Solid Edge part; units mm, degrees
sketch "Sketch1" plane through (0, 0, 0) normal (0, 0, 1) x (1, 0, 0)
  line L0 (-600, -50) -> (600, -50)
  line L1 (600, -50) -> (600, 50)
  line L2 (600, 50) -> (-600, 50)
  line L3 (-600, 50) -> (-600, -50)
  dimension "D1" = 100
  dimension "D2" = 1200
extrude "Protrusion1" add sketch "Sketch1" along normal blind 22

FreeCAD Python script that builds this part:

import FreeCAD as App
import Part
import Sketcher
Q = App.Units.Quantity


def add_polygon(sketch, points):
    """Adds a closed chain of lines whose ends are joined by coincident constraints."""
    first, n = sketch.GeometryCount, len(points)
    for a, b in zip(points, points[1:] + points[:1]):
        sketch.addGeometry(Part.LineSegment(App.Vector(*a, 0), App.Vector(*b, 0)), False)
    for i in range(n):
        sketch.addConstraint(Sketcher.Constraint("Coincident", first + i, 2, first + (i + 1) % n, 1))

doc = App.newDocument("Part")
body = doc.addObject("PartDesign::Body", "Body")

sketch1 = doc.addObject("Sketcher::SketchObject", "Sketch")
body.addObject(sketch1)
sketch1.AttachmentSupport = (doc.XY_Plane, [""])
sketch1.MapMode = "FlatFace"
add_polygon(sketch1, [(-600, 50), (-600, -50), (600, -50), (600, 50)])
sketch1.addConstraint(Sketcher.Constraint("Vertical", 0))
sketch1.addConstraint(Sketcher.Constraint("Horizontal", 1))
sketch1.addConstraint(Sketcher.Constraint("Vertical", 2))
sketch1.addConstraint(Sketcher.Constraint("Horizontal", 3))
sketch1.addConstraint(Sketcher.Constraint("Symmetric", 0, 2, 2, 2, -1, 1))
sketch1.addConstraint(Sketcher.Constraint("DistanceX", 0, 2, -1, 1, Q("600 mm")))
sketch1.addConstraint(Sketcher.Constraint("DistanceY", 0, 2, 0, 1, Q("100 mm")))
pad1 = doc.addObject("PartDesign::Pad", "Pad")
body.addObject(pad1)
pad1.Profile = sketch1
pad1.Length = 22

doc.recompute()
